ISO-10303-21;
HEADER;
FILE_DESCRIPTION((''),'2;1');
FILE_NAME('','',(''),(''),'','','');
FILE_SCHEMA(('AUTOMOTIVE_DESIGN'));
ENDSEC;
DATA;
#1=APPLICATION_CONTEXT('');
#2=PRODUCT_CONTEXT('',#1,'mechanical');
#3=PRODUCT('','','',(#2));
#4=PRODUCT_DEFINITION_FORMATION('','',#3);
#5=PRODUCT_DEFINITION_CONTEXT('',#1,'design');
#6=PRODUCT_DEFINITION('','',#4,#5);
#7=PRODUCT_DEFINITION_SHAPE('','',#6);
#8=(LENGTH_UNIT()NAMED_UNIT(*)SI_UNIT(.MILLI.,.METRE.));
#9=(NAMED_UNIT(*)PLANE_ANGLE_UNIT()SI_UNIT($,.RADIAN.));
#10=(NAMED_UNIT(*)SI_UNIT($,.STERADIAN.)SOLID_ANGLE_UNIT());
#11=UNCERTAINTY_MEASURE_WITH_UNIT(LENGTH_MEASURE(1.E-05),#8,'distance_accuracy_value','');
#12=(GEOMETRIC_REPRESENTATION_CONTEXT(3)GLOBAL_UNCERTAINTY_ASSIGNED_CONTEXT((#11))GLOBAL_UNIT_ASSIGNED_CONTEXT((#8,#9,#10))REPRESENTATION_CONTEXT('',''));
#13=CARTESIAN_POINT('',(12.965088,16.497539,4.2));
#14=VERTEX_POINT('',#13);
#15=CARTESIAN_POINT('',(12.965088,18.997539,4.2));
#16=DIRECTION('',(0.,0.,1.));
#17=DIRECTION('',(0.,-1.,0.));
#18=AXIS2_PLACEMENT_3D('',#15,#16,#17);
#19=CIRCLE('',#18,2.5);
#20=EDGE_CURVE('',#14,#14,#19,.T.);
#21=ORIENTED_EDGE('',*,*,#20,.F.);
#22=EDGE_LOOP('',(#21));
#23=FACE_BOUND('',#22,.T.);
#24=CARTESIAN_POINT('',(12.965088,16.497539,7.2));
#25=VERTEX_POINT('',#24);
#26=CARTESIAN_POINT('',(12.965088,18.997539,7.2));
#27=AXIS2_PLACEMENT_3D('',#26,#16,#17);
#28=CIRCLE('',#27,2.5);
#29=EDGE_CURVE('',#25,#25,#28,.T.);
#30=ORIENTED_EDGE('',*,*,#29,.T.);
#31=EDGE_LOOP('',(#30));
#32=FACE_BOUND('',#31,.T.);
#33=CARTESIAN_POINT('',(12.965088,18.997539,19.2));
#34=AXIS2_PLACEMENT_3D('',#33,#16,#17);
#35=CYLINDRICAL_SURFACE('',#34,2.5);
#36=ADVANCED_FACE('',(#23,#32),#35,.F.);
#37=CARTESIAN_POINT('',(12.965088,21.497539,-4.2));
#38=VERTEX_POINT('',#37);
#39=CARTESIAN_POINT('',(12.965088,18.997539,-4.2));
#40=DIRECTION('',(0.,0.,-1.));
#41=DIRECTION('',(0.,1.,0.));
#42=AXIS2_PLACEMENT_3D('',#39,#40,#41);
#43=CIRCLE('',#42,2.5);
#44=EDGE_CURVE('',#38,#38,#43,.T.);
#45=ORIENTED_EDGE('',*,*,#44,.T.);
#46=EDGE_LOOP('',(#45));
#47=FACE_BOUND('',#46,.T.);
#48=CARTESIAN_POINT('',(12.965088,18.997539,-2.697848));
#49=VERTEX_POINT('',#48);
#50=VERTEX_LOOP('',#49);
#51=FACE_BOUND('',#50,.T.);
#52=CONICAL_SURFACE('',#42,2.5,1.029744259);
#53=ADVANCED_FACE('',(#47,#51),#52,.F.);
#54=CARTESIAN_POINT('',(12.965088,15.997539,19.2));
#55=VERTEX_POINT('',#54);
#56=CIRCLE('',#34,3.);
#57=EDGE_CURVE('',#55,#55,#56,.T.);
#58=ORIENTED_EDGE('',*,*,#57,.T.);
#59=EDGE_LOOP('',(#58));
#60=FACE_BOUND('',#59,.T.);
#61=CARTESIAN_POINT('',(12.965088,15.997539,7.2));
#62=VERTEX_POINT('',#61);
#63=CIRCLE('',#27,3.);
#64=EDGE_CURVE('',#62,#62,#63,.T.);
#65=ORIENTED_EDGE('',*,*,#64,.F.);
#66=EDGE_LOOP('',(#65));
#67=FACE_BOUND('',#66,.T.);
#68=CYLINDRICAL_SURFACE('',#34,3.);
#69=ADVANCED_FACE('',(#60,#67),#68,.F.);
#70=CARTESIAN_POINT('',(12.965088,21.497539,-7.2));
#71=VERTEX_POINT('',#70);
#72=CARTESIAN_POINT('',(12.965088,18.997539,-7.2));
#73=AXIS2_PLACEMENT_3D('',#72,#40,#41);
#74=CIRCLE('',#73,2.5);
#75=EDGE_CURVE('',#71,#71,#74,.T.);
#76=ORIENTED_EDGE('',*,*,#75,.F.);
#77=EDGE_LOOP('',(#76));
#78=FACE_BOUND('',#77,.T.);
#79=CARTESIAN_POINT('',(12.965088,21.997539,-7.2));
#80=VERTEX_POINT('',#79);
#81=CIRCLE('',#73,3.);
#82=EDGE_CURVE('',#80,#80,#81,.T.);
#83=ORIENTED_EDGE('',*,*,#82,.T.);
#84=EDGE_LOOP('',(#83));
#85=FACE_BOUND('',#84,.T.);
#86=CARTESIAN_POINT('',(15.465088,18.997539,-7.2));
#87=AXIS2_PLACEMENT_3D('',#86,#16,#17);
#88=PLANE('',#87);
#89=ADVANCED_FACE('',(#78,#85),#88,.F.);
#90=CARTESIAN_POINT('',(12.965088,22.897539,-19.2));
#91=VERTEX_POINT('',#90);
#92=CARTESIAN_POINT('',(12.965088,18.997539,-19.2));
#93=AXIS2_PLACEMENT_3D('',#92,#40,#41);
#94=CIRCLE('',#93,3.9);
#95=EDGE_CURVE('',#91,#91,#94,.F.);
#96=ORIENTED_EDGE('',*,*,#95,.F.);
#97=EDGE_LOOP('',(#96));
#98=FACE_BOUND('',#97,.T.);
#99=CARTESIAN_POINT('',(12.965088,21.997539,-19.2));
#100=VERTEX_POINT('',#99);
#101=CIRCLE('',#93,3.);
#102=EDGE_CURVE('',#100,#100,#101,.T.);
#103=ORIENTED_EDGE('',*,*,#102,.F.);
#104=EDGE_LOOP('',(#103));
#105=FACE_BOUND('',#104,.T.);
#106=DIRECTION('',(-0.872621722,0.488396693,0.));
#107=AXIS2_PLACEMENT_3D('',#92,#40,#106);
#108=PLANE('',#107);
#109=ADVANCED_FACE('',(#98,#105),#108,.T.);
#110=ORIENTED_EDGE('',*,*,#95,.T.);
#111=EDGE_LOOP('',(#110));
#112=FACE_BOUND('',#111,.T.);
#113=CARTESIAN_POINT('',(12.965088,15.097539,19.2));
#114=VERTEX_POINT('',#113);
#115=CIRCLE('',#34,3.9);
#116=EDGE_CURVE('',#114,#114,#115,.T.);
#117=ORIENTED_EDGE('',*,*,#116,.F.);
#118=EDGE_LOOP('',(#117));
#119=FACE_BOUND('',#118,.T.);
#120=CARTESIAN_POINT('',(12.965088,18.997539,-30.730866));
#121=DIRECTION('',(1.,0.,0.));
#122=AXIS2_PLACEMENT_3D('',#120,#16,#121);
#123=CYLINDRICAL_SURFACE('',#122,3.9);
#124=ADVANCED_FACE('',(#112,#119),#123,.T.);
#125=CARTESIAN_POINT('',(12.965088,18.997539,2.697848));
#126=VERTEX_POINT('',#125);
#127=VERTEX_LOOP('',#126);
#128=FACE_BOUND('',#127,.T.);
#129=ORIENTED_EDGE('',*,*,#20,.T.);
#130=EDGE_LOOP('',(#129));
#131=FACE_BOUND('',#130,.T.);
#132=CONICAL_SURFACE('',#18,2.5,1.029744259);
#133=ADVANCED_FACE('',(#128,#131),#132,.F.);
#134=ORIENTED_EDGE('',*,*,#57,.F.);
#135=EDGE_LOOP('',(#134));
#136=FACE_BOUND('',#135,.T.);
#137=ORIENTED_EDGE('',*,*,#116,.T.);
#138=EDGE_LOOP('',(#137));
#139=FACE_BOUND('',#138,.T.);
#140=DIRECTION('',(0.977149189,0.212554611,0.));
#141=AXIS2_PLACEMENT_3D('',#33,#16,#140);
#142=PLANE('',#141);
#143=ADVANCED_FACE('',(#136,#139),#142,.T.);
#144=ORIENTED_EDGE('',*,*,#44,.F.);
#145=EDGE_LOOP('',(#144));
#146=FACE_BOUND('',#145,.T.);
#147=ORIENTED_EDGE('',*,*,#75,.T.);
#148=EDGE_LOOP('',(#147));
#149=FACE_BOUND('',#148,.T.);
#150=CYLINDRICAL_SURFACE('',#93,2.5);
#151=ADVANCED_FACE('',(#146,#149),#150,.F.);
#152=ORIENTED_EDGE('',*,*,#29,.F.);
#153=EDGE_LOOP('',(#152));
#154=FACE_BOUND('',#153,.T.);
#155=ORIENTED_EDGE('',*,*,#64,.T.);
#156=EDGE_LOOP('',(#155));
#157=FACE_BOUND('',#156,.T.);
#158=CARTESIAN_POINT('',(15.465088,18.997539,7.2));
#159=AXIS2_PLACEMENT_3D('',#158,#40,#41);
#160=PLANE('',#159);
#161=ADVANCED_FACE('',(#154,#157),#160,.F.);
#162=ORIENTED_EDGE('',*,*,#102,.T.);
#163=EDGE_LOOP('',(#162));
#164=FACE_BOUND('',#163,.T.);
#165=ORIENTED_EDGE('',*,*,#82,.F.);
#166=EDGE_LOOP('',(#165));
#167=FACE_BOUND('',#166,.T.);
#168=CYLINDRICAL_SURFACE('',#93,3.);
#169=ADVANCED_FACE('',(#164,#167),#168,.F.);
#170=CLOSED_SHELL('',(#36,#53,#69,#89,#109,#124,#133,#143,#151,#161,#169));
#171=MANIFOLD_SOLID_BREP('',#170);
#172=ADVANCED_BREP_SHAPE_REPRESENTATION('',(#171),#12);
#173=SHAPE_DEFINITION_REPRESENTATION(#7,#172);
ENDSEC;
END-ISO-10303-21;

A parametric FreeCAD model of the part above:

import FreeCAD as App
import Part
import Sketcher
Q = App.Units.Quantity

doc = App.newDocument("Part")
params = doc.addObject("Spreadsheet::Sheet", "Params")
for row, (alias, value) in enumerate([
    ("sketch1_diameter", "7.8 mm"),
    ("pad1_length", "19.2 mm"),
    ("pad1_length2", "19.2 mm"),
    ("sketch2_diameter", "5 mm"),
    ("hole_diameter", "5 mm"),
    ("hole_depth", "15 mm"),
    ("hole_cbore_diameter", "6 mm"),
    ("hole_cbore_depth", "12 mm"),
    ("sketch3_diameter", "5 mm"),
    ("hole2_diameter", "5 mm"),
    ("hole2_depth", "15 mm"),
    ("hole2_cbore_diameter", "6 mm"),
    ("hole2_cbore_depth", "12 mm"),
], start=1):
    params.set(f"A{row}", alias)
    params.set(f"B{row}", "=" + value)
    params.setAlias(f"B{row}", alias)

body = doc.addObject("PartDesign::Body", "Body")

# Sketch on XY plane
sketch1 = doc.addObject("Sketcher::SketchObject", "Sketch")
body.addObject(sketch1)
sketch1.AttachmentSupport = (doc.XY_Plane, [""])
sketch1.MapMode = "FlatFace"
sketch1.addGeometry(Part.Circle(App.Vector(13, 19, 0), App.Vector(0, 0, 1), 3.9), False)
sketch1.addConstraint([
    Sketcher.Constraint("Diameter", 0, Q("7.8 mm")),
    Sketcher.Constraint("DistanceX", -1, 1, 0, 3, Q("12.965088 mm")),
    Sketcher.Constraint("DistanceY", -1, 1, 0, 3, Q("18.997539 mm")),
])
sketch1.setExpression("Constraints[0]", "Params.sketch1_diameter")
pad1 = doc.addObject("PartDesign::Pad", "Pad")
body.addObject(pad1)
pad1.Profile = sketch1
pad1.Type = "TwoLengths"
pad1.setExpression("Length", "Params.pad1_length")
pad1.setExpression("Length2", "Params.pad1_length2")

# Sketch on XY plane
sketch2 = doc.addObject("Sketcher::SketchObject", "Sketch001")
body.addObject(sketch2)
sketch2.AttachmentSupport = (doc.XY_Plane, [""])
sketch2.MapMode = "FlatFace"
sketch2.AttachmentOffset = App.Placement(App.Vector(0, 0, 19.2), App.Rotation())
sketch2.addGeometry(Part.Circle(App.Vector(13, 19, 0), App.Vector(0, 0, 1), 2.5), False)
sketch2.addConstraint([
    Sketcher.Constraint("Diameter", 0, Q("5 mm")),
    Sketcher.Constraint("DistanceX", -1, 1, 0, 3, Q("12.965088 mm")),
    Sketcher.Constraint("DistanceY", -1, 1, 0, 3, Q("18.997539 mm")),
])
sketch2.setExpression("Constraints[0]", "Params.sketch2_diameter")
doc.recompute()
hole = doc.addObject("PartDesign::Hole", "Hole")
body.addObject(hole)
hole.Profile = sketch2
hole.ThreadType = "None"
hole.setExpression("Diameter", "Params.hole_diameter")
hole.DepthType = "Dimension"
hole.setExpression("Depth", "Params.hole_depth")
hole.DrillPoint = "Angled"
hole.DrillPointAngle = 118
hole.HoleCutType = "Counterbore"
hole.setExpression("HoleCutDiameter", "Params.hole_cbore_diameter")
hole.setExpression("HoleCutDepth", "Params.hole_cbore_depth")

# Sketch on XY plane
sketch3 = doc.addObject("Sketcher::SketchObject", "Sketch002")
body.addObject(sketch3)
sketch3.AttachmentSupport = (doc.XY_Plane, [""])
sketch3.MapMode = "FlatFace"
sketch3.AttachmentOffset = App.Placement(App.Vector(0, 0, -19.2), App.Rotation())
sketch3.addGeometry(Part.Circle(App.Vector(13, 19, 0), App.Vector(0, 0, 1), 2.5), False)
sketch3.addConstraint([
    Sketcher.Constraint("Diameter", 0, Q("5 mm")),
    Sketcher.Constraint("DistanceX", -1, 1, 0, 3, Q("12.965088 mm")),
    Sketcher.Constraint("DistanceY", -1, 1, 0, 3, Q("18.997539 mm")),
])
sketch3.setExpression("Constraints[0]", "Params.sketch3_diameter")
doc.recompute()
hole2 = doc.addObject("PartDesign::Hole", "Hole001")
body.addObject(hole2)
hole2.Profile = sketch3
hole2.ThreadType = "None"
hole2.setExpression("Diameter", "Params.hole2_diameter")
hole2.DepthType = "Dimension"
hole2.setExpression("Depth", "Params.hole2_depth")
hole2.DrillPoint = "Angled"
hole2.DrillPointAngle = 118
hole2.HoleCutType = "Counterbore"
hole2.setExpression("HoleCutDiameter", "Params.hole2_cbore_diameter")
hole2.setExpression("HoleCutDepth", "Params.hole2_cbore_depth")
hole2.Reversed = True

doc.recompute()
